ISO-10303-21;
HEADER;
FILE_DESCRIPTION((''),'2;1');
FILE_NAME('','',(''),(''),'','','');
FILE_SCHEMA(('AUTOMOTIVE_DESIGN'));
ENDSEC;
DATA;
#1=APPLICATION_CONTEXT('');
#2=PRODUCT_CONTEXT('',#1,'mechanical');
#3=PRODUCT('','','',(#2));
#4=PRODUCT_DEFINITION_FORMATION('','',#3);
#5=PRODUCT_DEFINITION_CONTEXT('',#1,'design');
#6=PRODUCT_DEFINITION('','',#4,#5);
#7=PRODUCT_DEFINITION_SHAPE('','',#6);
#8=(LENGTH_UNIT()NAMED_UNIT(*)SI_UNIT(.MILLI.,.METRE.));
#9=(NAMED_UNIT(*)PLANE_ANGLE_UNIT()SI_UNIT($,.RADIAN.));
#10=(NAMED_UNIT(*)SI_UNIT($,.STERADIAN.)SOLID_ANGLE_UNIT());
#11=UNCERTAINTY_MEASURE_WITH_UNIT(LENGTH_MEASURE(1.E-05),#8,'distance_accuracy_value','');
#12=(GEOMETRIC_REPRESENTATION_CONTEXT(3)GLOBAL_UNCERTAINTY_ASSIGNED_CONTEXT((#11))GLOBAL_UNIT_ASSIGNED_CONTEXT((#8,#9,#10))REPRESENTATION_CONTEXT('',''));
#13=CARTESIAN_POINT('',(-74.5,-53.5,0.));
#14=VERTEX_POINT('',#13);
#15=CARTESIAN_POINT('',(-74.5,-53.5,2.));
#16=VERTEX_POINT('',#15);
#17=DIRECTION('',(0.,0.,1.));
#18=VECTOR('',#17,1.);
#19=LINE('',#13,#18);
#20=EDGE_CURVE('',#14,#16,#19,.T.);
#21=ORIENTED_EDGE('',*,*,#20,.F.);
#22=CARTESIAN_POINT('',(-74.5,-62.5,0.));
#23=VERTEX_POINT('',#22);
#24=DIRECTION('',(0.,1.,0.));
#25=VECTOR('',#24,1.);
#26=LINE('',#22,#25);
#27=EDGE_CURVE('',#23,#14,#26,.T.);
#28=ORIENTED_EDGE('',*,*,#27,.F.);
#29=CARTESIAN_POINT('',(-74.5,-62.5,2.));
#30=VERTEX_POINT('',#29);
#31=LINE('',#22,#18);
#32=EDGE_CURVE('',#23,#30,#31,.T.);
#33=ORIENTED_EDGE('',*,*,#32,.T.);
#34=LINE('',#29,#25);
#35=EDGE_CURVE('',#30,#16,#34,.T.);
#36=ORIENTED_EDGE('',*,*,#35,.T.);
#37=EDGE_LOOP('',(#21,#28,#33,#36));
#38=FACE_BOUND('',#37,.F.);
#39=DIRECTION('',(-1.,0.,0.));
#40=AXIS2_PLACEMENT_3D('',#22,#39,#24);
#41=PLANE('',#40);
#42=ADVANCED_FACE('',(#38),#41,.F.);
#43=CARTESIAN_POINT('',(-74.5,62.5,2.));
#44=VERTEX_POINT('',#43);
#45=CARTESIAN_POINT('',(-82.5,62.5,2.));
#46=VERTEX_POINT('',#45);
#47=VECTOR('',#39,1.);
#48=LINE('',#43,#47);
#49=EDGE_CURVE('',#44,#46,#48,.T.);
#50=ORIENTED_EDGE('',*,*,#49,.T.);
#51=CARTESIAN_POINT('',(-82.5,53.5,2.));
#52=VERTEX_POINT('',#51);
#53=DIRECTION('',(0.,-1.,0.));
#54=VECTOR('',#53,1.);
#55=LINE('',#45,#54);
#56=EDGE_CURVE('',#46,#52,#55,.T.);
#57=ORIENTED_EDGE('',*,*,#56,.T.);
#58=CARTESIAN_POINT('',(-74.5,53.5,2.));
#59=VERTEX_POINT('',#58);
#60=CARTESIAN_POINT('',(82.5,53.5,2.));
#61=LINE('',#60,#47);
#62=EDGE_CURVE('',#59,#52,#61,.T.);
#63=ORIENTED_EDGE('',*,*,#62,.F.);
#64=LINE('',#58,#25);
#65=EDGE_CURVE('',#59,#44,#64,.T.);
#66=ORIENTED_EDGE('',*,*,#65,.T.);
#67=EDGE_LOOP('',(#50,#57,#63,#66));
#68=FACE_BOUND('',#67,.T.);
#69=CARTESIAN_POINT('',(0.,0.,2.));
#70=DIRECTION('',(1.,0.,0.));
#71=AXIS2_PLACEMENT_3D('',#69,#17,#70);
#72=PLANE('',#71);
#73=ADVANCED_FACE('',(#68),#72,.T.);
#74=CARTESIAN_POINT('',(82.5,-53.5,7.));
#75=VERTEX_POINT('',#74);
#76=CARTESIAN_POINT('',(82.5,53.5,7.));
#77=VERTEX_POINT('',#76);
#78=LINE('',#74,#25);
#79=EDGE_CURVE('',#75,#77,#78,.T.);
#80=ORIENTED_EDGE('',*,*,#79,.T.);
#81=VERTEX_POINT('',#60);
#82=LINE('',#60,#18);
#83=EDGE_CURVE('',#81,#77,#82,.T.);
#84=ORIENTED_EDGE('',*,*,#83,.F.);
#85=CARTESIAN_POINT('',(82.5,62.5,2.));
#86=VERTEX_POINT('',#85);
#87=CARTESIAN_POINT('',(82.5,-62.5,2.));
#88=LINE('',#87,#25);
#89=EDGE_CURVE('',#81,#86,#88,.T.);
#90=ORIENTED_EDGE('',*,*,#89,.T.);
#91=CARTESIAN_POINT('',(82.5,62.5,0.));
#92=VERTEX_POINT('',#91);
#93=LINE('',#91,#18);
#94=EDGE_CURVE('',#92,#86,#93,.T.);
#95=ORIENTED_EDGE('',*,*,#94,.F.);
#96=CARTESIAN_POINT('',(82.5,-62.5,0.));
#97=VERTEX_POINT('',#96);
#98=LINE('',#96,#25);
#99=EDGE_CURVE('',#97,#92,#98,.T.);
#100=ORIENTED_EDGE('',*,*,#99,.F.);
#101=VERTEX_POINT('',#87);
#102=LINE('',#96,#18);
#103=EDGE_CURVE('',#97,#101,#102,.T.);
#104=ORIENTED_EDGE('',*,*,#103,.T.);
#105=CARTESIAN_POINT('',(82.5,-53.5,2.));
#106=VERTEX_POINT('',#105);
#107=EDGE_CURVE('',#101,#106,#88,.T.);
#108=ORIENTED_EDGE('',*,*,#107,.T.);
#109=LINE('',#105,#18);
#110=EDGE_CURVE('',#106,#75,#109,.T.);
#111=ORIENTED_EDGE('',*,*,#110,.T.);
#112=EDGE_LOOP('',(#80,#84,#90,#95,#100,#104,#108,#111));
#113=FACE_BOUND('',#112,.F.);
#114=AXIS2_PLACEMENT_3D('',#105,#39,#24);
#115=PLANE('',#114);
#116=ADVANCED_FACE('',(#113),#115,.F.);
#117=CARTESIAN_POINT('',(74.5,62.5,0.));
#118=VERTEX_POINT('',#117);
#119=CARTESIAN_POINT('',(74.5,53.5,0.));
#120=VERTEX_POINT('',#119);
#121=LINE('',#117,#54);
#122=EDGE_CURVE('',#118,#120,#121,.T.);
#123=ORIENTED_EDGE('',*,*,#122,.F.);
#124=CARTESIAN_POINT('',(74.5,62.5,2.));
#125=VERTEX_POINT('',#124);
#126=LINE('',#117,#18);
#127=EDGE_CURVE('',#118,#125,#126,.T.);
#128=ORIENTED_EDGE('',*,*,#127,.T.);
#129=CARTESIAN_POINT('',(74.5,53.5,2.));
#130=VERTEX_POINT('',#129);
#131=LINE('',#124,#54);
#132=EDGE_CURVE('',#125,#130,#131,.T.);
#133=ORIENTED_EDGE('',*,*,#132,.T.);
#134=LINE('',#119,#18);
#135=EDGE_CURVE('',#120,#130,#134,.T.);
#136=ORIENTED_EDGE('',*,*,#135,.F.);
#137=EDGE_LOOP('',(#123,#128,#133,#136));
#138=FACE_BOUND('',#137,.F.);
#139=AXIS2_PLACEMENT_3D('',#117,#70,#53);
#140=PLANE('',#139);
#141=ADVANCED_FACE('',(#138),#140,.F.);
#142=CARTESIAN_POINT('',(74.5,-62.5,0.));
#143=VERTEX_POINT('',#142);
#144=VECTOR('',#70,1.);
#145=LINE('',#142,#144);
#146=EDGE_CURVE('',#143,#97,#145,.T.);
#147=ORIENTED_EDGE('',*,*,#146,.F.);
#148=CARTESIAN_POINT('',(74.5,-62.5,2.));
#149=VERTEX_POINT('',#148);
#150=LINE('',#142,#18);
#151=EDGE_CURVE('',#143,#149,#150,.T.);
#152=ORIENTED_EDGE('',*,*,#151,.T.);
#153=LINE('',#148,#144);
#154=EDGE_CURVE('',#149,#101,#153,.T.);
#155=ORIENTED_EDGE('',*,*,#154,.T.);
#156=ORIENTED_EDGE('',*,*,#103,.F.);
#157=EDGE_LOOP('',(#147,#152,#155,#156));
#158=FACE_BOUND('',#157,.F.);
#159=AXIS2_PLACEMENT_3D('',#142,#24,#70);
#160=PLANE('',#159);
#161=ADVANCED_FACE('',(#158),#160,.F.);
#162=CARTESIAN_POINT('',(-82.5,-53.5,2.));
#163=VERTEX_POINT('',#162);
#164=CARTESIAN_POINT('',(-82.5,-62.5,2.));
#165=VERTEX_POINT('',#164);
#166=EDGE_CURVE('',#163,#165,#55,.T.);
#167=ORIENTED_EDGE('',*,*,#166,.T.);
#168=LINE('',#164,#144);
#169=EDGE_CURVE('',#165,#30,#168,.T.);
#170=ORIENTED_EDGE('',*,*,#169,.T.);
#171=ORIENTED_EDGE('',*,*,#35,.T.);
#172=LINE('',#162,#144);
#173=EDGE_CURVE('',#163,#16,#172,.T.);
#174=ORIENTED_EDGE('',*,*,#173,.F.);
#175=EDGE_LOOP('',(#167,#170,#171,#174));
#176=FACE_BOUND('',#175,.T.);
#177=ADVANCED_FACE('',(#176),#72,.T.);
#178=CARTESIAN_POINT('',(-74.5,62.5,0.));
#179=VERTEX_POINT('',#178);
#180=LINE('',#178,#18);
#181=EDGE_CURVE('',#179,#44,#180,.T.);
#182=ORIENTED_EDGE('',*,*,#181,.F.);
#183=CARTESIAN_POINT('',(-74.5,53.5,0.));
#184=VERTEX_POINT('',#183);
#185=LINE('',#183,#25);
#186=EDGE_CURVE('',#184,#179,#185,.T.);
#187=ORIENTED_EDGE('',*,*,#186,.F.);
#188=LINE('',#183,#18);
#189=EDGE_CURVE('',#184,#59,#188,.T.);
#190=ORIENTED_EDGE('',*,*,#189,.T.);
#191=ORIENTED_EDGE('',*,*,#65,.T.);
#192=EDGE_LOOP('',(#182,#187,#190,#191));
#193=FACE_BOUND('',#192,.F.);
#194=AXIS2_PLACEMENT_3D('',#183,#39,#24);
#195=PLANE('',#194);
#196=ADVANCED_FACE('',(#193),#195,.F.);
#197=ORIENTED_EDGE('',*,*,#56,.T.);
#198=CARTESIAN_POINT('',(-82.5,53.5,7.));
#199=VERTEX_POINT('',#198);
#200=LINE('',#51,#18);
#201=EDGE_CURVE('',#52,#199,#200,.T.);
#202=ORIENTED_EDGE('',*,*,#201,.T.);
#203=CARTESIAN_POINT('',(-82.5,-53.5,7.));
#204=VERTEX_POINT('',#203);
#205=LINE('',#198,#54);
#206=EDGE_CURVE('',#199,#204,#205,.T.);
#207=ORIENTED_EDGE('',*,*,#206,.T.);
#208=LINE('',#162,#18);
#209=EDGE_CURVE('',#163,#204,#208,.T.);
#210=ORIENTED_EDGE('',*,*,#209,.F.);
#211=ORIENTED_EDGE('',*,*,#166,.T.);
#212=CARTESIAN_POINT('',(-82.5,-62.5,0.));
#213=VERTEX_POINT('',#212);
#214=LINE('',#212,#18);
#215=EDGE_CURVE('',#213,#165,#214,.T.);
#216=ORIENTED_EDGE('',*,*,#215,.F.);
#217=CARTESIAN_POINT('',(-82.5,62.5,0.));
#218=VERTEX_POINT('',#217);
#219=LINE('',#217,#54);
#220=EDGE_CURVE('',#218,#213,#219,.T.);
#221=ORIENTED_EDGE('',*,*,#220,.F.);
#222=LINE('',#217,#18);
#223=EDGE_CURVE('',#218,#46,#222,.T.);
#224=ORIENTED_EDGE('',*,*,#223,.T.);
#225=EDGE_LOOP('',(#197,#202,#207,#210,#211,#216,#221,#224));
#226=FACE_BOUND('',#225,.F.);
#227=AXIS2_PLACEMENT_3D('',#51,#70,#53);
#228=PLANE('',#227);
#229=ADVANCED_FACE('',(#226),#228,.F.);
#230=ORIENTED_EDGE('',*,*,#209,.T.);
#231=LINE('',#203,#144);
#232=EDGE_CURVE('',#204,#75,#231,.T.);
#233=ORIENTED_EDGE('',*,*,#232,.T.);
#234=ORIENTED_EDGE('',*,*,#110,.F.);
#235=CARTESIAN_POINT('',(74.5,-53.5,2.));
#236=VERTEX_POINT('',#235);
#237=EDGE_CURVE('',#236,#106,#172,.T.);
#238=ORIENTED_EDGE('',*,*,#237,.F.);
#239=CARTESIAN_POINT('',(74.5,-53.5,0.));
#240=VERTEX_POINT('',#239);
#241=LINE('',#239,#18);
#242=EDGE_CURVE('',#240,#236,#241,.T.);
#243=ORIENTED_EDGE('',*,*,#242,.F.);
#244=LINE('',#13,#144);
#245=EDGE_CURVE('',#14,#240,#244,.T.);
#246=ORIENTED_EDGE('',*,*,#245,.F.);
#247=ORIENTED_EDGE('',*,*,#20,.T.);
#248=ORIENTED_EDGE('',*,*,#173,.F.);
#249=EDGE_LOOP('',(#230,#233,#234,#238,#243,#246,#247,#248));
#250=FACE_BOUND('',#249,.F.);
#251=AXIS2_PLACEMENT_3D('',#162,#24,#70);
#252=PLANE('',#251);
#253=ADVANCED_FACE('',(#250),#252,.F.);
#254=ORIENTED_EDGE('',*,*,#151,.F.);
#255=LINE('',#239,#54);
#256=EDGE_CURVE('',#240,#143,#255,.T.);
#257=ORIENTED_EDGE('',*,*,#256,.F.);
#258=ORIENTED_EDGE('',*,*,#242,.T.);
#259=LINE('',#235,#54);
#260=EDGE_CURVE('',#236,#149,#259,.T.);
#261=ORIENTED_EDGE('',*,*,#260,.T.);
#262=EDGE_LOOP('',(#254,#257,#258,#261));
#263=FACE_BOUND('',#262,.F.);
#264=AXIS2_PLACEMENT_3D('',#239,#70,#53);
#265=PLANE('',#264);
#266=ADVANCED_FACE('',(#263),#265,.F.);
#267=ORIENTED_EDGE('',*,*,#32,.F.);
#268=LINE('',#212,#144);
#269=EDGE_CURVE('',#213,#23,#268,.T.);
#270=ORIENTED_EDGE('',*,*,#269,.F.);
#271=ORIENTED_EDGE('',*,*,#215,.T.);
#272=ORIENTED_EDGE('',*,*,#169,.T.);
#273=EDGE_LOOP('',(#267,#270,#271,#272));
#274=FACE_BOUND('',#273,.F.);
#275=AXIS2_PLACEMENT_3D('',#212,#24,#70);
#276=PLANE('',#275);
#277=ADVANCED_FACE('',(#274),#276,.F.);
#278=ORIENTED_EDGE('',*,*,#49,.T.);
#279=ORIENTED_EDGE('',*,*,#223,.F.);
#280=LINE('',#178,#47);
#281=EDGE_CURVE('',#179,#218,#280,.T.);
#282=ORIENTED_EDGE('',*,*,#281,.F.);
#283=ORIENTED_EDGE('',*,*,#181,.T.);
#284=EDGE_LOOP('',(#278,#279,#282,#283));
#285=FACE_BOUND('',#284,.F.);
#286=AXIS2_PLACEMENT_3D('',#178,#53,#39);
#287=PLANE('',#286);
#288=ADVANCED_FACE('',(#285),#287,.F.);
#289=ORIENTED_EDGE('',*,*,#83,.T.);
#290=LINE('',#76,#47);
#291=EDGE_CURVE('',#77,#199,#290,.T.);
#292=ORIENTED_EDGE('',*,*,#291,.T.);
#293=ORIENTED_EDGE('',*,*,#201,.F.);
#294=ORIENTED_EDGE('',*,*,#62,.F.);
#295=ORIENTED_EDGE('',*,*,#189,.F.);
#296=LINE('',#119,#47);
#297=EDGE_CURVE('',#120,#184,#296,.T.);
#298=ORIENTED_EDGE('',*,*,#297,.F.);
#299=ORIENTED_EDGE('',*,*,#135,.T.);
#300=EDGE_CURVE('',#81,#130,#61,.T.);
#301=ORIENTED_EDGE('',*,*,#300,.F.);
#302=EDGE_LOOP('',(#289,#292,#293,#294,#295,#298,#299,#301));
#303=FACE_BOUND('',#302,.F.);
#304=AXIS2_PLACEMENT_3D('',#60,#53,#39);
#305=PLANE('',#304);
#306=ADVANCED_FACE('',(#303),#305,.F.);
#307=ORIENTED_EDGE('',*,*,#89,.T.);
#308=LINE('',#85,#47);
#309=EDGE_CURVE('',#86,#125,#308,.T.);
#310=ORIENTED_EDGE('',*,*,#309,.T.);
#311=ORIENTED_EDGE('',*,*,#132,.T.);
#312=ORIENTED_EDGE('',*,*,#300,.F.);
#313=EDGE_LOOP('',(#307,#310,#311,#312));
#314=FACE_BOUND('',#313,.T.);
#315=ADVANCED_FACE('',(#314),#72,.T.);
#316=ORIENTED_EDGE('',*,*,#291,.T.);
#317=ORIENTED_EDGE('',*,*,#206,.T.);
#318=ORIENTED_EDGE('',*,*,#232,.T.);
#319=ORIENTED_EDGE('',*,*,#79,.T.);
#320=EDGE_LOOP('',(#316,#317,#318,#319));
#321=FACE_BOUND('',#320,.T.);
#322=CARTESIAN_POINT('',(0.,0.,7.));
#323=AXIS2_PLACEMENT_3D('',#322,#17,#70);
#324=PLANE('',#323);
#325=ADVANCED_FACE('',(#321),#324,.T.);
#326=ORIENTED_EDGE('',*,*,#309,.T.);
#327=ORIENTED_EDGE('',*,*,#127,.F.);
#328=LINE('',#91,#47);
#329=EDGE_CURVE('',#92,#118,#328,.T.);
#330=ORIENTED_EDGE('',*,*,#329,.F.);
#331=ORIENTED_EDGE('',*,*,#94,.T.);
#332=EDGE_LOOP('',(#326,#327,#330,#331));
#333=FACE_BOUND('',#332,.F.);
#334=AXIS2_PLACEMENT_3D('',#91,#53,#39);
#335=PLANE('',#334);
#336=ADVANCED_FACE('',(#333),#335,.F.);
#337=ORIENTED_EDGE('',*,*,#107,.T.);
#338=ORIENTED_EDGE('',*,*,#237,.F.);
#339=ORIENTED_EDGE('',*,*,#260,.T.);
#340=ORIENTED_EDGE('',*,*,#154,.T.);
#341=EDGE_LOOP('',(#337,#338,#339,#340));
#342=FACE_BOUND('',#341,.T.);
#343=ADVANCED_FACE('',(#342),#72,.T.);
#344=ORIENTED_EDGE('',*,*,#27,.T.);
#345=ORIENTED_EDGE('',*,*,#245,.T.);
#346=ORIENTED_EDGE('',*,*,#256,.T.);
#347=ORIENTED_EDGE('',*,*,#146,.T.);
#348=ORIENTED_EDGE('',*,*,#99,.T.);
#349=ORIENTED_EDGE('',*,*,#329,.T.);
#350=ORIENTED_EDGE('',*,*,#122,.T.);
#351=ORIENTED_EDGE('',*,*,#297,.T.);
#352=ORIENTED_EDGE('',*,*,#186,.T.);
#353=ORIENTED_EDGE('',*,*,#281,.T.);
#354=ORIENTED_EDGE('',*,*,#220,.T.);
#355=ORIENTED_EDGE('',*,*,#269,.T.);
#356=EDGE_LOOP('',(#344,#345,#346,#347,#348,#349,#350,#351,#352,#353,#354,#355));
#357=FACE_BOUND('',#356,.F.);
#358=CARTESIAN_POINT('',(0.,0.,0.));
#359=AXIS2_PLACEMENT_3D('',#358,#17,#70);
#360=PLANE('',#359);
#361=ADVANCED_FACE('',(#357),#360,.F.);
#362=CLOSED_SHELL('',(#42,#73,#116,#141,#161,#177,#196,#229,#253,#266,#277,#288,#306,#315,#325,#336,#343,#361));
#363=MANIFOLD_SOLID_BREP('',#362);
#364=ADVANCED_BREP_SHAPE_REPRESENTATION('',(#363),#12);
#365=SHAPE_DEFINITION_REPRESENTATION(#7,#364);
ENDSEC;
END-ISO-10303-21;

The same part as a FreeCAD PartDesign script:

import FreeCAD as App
import Part
import Sketcher
Q = App.Units.Quantity

doc = App.newDocument("Part")
body = doc.addObject("PartDesign::Body", "Body")

# Sketch on XY plane
sketch1 = body.newObject("Sketcher::SketchObject", "Sketch")
sketch1.AttachmentSupport = (doc.getObject("XY_Plane"), [""])
sketch1.MapMode = "FlatFace"
sketch1.addGeometry([
    Part.LineSegment(App.Vector(82, 62, 0), App.Vector(74, 62, 0)),  # 0
    Part.LineSegment(App.Vector(74, 62, 0), App.Vector(74, 54, 0)),  # 1
    Part.LineSegment(App.Vector(74, 54, 0), App.Vector(-74, 54, 0)),  # 2
    Part.LineSegment(App.Vector(-74, 54, 0), App.Vector(-74, 62, 0)),  # 3
    Part.LineSegment(App.Vector(-74, 62, 0), App.Vector(-82, 62, 0)),  # 4
    Part.LineSegment(App.Vector(-82, 62, 0), App.Vector(-82, -62, 0)),  # 5
    Part.LineSegment(App.Vector(-82, -62, 0), App.Vector(-74, -62, 0)),  # 6
    Part.LineSegment(App.Vector(-74, -62, 0), App.Vector(-74, -54, 0)),  # 7
    Part.LineSegment(App.Vector(-74, -54, 0), App.Vector(74, -54, 0)),  # 8
    Part.LineSegment(App.Vector(74, -54, 0), App.Vector(74, -62, 0)),  # 9
    Part.LineSegment(App.Vector(74, -62, 0), App.Vector(82, -62, 0)),  # 10
    Part.LineSegment(App.Vector(82, -62, 0), App.Vector(82, 62, 0)),  # 11
], False)
sketch1.addConstraint([
    Sketcher.Constraint("Coincident", 0, 2, 1, 1),
    Sketcher.Constraint("Coincident", 1, 2, 2, 1),
    Sketcher.Constraint("Coincident", 2, 2, 3, 1),
    Sketcher.Constraint("Coincident", 3, 2, 4, 1),
    Sketcher.Constraint("Coincident", 4, 2, 5, 1),
    Sketcher.Constraint("Coincident", 5, 2, 6, 1),
    Sketcher.Constraint("Coincident", 6, 2, 7, 1),
    Sketcher.Constraint("Coincident", 7, 2, 8, 1),
    Sketcher.Constraint("Coincident", 8, 2, 9, 1),
    Sketcher.Constraint("Coincident", 9, 2, 10, 1),
    Sketcher.Constraint("Coincident", 10, 2, 11, 1),
    Sketcher.Constraint("Coincident", 11, 2, 0, 1),
    Sketcher.Constraint("Horizontal", 0),
    Sketcher.Constraint("Vertical", 1),
    Sketcher.Constraint("Horizontal", 2),
    Sketcher.Constraint("Vertical", 3),
    Sketcher.Constraint("Horizontal", 4),
    Sketcher.Constraint("Vertical", 5),
    Sketcher.Constraint("Horizontal", 6),
    Sketcher.Constraint("Vertical", 7),
    Sketcher.Constraint("Horizontal", 8),
    Sketcher.Constraint("Vertical", 9),
    Sketcher.Constraint("Horizontal", 10),
    Sketcher.Constraint("Vertical", 11),
    Sketcher.Constraint("Symmetric", 0, 2, 6, 2, -1, 1),
    Sketcher.Constraint("Symmetric", 2, 2, 8, 2, -1, 1),
    Sketcher.Constraint("Symmetric", 4, 2, 10, 2, -1, 1),
    Sketcher.Constraint("Symmetric", 0, 2, 3, 2, -2),
    Sketcher.Constraint("DistanceX", 0, 2, 0, 1, Q("8 mm")),
    Sketcher.Constraint("DistanceX", 2, 2, 2, 1, Q("149 mm")),
    Sketcher.Constraint("DistanceY", 1, 2, 1, 1, Q("9 mm")),
    Sketcher.Constraint("DistanceY", 5, 2, 5, 1, Q("125 mm")),
])
pad1 = body.newObject("PartDesign::Pad", "Pad")
pad1.Profile = sketch1
pad1.Length = 2

# Sketch on XY plane
sketch2 = body.newObject("Sketcher::SketchObject", "Sketch001")
sketch2.AttachmentSupport = (doc.getObject("XY_Plane"), [""])
sketch2.MapMode = "FlatFace"
sketch2.AttachmentOffset = App.Placement(App.Vector(0, 0, 2), App.Rotation())
sketch2.addGeometry([
    Part.LineSegment(App.Vector(82, -54, 0), App.Vector(82, 54, 0)),
    Part.LineSegment(App.Vector(82, 54, 0), App.Vector(-82, 54, 0)),
    Part.LineSegment(App.Vector(-82, 54, 0), App.Vector(-82, -54, 0)),
    Part.LineSegment(App.Vector(-82, -54, 0), App.Vector(82, -54, 0)),
], False)
sketch2.addConstraint([
    Sketcher.Constraint("Coincident", 0, 2, 1, 1),
    Sketcher.Constraint("Coincident", 1, 2, 2, 1),
    Sketcher.Constraint("Coincident", 2, 2, 3, 1),
    Sketcher.Constraint("Coincident", 3, 2, 0, 1),
    Sketcher.Constraint("Vertical", 0),
    Sketcher.Constraint("Horizontal", 1),
    Sketcher.Constraint("Vertical", 2),
    Sketcher.Constraint("Horizontal", 3),
    Sketcher.Constraint("Symmetric", 0, 2, 2, 2, -1, 1),
    Sketcher.Constraint("DistanceX", 1, 2, 1, 1, Q("165 mm")),
    Sketcher.Constraint("DistanceY", 0, 1, 0, 2, Q("107 mm")),
])
pad2 = body.newObject("PartDesign::Pad", "Pad001")
pad2.Profile = sketch2
pad2.Length = 5

doc.recompute()
